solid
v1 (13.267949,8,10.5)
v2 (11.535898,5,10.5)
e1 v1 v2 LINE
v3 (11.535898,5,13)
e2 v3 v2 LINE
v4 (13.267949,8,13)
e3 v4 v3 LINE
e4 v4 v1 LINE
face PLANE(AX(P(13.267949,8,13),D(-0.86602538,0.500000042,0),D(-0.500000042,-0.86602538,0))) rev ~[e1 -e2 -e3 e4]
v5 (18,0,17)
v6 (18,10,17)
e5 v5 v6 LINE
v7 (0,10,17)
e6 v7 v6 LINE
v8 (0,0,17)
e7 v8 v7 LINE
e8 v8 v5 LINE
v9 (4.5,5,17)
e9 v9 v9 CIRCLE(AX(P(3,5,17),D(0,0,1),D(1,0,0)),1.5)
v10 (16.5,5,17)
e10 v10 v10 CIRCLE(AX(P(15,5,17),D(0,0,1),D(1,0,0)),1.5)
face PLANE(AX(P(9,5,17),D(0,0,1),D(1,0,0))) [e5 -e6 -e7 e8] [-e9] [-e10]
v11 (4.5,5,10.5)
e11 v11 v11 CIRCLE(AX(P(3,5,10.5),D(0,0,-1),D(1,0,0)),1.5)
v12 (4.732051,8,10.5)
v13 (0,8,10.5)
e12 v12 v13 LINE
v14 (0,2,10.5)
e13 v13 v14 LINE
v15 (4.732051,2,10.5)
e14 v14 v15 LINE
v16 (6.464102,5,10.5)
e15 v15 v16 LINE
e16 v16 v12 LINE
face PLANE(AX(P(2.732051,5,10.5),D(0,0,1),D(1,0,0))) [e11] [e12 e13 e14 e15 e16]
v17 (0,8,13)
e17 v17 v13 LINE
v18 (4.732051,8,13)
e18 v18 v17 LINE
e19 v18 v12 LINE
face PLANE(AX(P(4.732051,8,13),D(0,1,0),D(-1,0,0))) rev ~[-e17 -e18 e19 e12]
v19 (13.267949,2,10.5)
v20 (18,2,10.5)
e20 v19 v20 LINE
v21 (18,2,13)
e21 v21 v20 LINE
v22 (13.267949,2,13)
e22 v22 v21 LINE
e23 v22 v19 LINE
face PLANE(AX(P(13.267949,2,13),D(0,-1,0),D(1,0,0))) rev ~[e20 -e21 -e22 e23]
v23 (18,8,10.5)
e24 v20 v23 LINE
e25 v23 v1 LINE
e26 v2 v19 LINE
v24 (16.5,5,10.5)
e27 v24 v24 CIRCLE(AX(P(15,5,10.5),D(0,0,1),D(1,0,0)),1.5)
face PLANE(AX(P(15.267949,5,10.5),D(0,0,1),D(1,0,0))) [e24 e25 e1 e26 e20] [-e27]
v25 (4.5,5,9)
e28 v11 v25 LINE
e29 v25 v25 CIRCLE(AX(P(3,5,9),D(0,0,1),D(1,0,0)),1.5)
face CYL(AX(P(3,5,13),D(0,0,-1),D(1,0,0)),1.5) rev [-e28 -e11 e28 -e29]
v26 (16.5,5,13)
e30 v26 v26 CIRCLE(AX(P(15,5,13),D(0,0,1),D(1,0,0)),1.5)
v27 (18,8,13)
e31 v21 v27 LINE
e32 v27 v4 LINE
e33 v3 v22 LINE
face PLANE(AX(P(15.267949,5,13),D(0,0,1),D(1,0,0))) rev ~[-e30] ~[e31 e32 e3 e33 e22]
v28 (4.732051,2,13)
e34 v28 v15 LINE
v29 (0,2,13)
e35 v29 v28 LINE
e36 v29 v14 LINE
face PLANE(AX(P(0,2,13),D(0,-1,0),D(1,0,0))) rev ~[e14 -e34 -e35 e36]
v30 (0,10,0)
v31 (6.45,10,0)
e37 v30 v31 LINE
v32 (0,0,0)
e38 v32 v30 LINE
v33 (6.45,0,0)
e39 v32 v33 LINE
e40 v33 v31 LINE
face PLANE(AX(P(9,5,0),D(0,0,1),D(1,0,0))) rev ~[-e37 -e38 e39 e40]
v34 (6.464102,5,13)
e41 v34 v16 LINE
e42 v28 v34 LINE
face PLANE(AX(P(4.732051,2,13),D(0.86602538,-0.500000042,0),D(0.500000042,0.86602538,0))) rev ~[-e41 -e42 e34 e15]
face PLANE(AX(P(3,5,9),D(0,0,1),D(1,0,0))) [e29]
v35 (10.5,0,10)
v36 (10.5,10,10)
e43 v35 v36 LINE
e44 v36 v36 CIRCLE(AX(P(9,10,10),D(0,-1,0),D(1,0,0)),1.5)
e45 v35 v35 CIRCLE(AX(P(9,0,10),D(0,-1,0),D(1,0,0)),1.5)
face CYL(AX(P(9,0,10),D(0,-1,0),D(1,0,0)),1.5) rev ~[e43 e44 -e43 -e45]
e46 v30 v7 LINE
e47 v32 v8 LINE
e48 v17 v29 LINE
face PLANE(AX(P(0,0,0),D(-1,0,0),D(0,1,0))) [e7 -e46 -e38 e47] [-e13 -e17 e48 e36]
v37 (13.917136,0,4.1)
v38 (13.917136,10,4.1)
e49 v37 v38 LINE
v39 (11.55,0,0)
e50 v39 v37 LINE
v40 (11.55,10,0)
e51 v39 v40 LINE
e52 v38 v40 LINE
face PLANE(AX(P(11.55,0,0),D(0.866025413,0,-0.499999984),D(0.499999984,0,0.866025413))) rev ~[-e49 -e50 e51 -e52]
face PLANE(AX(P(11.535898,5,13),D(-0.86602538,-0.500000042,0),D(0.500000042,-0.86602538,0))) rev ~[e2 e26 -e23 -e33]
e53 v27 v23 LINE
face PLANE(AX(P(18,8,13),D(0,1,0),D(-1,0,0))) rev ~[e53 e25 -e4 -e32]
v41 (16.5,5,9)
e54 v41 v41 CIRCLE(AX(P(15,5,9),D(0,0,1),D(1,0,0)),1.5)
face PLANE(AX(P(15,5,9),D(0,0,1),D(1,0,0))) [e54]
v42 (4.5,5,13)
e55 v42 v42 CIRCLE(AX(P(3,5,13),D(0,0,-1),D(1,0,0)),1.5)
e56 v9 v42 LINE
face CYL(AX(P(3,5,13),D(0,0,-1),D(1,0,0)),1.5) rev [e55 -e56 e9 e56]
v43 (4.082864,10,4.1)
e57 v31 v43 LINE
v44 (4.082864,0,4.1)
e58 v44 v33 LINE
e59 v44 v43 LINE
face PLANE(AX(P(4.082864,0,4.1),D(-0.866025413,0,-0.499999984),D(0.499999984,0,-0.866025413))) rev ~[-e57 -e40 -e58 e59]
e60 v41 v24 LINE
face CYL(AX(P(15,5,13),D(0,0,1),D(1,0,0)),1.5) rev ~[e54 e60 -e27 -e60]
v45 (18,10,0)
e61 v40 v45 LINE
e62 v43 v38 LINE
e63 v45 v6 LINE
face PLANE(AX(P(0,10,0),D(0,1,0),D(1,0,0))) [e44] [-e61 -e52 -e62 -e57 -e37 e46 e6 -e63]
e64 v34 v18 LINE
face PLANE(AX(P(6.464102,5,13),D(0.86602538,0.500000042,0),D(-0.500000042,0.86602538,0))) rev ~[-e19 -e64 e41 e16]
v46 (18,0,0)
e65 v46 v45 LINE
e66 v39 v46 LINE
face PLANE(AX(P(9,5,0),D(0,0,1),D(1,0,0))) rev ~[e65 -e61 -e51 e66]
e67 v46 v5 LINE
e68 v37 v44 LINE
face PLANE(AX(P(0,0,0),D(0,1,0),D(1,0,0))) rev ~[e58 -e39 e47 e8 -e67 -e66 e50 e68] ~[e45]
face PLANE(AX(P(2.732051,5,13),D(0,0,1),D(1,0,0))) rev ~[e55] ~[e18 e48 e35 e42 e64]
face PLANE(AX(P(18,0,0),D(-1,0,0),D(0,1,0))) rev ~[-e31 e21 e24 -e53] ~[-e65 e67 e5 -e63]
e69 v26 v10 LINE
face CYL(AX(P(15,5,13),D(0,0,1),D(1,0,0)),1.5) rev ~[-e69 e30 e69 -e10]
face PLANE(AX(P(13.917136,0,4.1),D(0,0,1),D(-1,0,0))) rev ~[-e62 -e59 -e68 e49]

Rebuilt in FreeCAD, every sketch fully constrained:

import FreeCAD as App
import Part
import Sketcher
Q = App.Units.Quantity


def add_polygon(sketch, points):
    """Adds a closed chain of lines whose ends are joined by coincident constraints."""
    first, n = sketch.GeometryCount, len(points)
    for a, b in zip(points, points[1:] + points[:1]):
        sketch.addGeometry(Part.LineSegment(App.Vector(*a, 0), App.Vector(*b, 0)), False)
    for i in range(n):
        sketch.addConstraint(Sketcher.Constraint("Coincident", first + i, 2, first + (i + 1) % n, 1))

doc = App.newDocument("Part")
body = doc.addObject("PartDesign::Body", "Body")

# Sketch on XY plane
sketch1 = body.newObject("Sketcher::SketchObject", "Sketch")
sketch1.AttachmentSupport = (doc.getObject("XY_Plane"), [""])
sketch1.MapMode = "FlatFace"
add_polygon(sketch1, [(0, 10), (0, 0), (18, 0), (18, 10)])  # lines 0-3
sketch1.addConstraint(Sketcher.Constraint("Vertical", 0))
sketch1.addConstraint(Sketcher.Constraint("Horizontal", 1))
sketch1.addConstraint(Sketcher.Constraint("Vertical", 2))
sketch1.addConstraint(Sketcher.Constraint("Horizontal", 3))
sketch1.addConstraint(Sketcher.Constraint("Coincident", 0, 2, -1, 1))
sketch1.addConstraint(Sketcher.Constraint("DistanceX", 1, 1, 1, 2, 18.0))
sketch1.addConstraint(Sketcher.Constraint("DistanceY", 0, 2, 0, 1, 10.0))
pad1 = body.newObject("PartDesign::Pad", "Pad")
pad1.Profile = sketch1
pad1.Length = 17

# Sketch on XY plane
sketch2 = body.newObject("Sketcher::SketchObject", "Sketch001")
sketch2.AttachmentSupport = (doc.getObject("XY_Plane"), [""])
sketch2.MapMode = "FlatFace"
sketch2.AttachmentOffset = App.Placement(App.Vector(0, 0, 13), App.Rotation())
sketch2.addGeometry(Part.Circle(App.Vector(3, 5, 0), App.Vector(0, 0, 1), 1.5), False)
sketch2.addGeometry(Part.Circle(App.Vector(15, 5, 0), App.Vector(0, 0, 1), 1.5), False)
sketch2.addConstraint(Sketcher.Constraint("Equal", 0, 1))
sketch2.addConstraint(Sketcher.Constraint("Horizontal", 0, 3, 1, 3))
sketch2.addConstraint(Sketcher.Constraint("Diameter", 0, 3.0))
sketch2.addConstraint(Sketcher.Constraint("DistanceX", -1, 1, 0, 3, 3.0))
sketch2.addConstraint(Sketcher.Constraint("DistanceY", -1, 1, 0, 3, 5.0))
sketch2.addConstraint(Sketcher.Constraint("DistanceX", -1, 1, 1, 3, 15.0))
pocket1 = body.newObject("PartDesign::Pocket", "Pocket")
pocket1.Profile = sketch2
pocket1.Length = 8
pocket1.Midplane = True

# Sketch on XY plane
sketch3 = body.newObject("Sketcher::SketchObject", "Sketch002")
sketch3.AttachmentSupport = (doc.getObject("XY_Plane"), [""])
sketch3.MapMode = "FlatFace"
sketch3.AttachmentOffset = App.Placement(App.Vector(0, 0, 13), App.Rotation())
add_polygon(sketch3, [(4.7, 2), (6.5, 5), (4.7, 8), (0, 8), (0, 2)])  # lines 0-4
add_polygon(sketch3, [(13.3, 8), (11.5, 5), (13.3, 2), (18, 2), (18, 8)])  # lines 5-9
sketch3.addConstraint(Sketcher.Constraint("Horizontal", 2))
sketch3.addConstraint(Sketcher.Constraint("Vertical", 3))
sketch3.addConstraint(Sketcher.Constraint("Horizontal", 4))
sketch3.addConstraint(Sketcher.Constraint("Horizontal", 7))
sketch3.addConstraint(Sketcher.Constraint("Vertical", 8))
sketch3.addConstraint(Sketcher.Constraint("Horizontal", 9))
sketch3.addConstraint(Sketcher.Constraint("PointOnObject", 2, 2, -2))
sketch3.addConstraint(Sketcher.Constraint("Parallel", 0, 5))
sketch3.addConstraint(Sketcher.Constraint("Parallel", 1, 6))
sketch3.addConstraint(Sketcher.Constraint("Horizontal", 0, 2, 5, 2))
sketch3.addConstraint(Sketcher.Constraint("Horizontal", 4, 2, 6, 2))
sketch3.addConstraint(Sketcher.Constraint("Horizontal", 2, 2, 8, 2))
sketch3.addConstraint(Sketcher.Constraint("Vertical", 1, 2, 4, 2))
sketch3.addConstraint(Sketcher.Constraint("Vertical", 6, 2, 9, 2))
sketch3.addConstraint(Sketcher.Constraint("Equal", 4, 7))
sketch3.addConstraint(Sketcher.Constraint("DistanceY", 3, 2, 3, 1, 6.0))
sketch3.addConstraint(Sketcher.Constraint("Angle", 0, Q("59.999997 deg")))
sketch3.addConstraint(Sketcher.Constraint("DistanceY", -1, 1, 0, 2, 5.0))
sketch3.addConstraint(Sketcher.Constraint("DistanceX", -1, 1, 7, 2, 18.0))
sketch3.addConstraint(Sketcher.Constraint("DistanceX", 2, 2, 2, 1, 4.732051))
pocket2 = body.newObject("PartDesign::Pocket", "Pocket001")
pocket2.Profile = sketch3
pocket2.Length = 2.5

# Sketch on XZ plane
sketch4 = body.newObject("Sketcher::SketchObject", "Sketch003")
sketch4.AttachmentSupport = (doc.getObject("XZ_Plane"), [""])
sketch4.MapMode = "FlatFace"
add_polygon(sketch4, [(6.5, 0), (11.6, 0), (13.9, 4.1), (4.1, 4.1)])  # lines 0-3
sketch4.addConstraint(Sketcher.Constraint("Horizontal", 0))
sketch4.addConstraint(Sketcher.Constraint("Horizontal", 2))
sketch4.addConstraint(Sketcher.Constraint("PointOnObject", 0, 2, -1))
sketch4.addConstraint(Sketcher.Constraint("Equal", 1, 3))
sketch4.addConstraint(Sketcher.Constraint("Angle", 1, Q("60.000001 deg")))
sketch4.addConstraint(Sketcher.Constraint("DistanceX", 0, 1, 0, 2, 5.1))
sketch4.addConstraint(Sketcher.Constraint("DistanceY", -1, 1, 1, 2, 4.1))
sketch4.addConstraint(Sketcher.Constraint("DistanceX", -1, 1, 0, 2, 11.55))
pocket3 = body.newObject("PartDesign::Pocket", "Pocket002")
pocket3.Profile = sketch4
pocket3.Type = "ThroughAll"

# Sketch on XZ plane
sketch5 = body.newObject("Sketcher::SketchObject", "Sketch004")
sketch5.AttachmentSupport = (doc.getObject("XZ_Plane"), [""])
sketch5.MapMode = "FlatFace"
sketch5.addGeometry(Part.Circle(App.Vector(9, 10, 0), App.Vector(0, 0, 1), 1.5), False)
sketch5.addConstraint(Sketcher.Constraint("Diameter", 0, 3.0))
sketch5.addConstraint(Sketcher.Constraint("DistanceX", -1, 1, 0, 3, 9.0))
sketch5.addConstraint(Sketcher.Constraint("DistanceY", -1, 1, 0, 3, 10.0))
pocket4 = body.newObject("PartDesign::Pocket", "Pocket003")
pocket4.Profile = sketch5
pocket4.Type = "ThroughAll"

doc.recompute()
